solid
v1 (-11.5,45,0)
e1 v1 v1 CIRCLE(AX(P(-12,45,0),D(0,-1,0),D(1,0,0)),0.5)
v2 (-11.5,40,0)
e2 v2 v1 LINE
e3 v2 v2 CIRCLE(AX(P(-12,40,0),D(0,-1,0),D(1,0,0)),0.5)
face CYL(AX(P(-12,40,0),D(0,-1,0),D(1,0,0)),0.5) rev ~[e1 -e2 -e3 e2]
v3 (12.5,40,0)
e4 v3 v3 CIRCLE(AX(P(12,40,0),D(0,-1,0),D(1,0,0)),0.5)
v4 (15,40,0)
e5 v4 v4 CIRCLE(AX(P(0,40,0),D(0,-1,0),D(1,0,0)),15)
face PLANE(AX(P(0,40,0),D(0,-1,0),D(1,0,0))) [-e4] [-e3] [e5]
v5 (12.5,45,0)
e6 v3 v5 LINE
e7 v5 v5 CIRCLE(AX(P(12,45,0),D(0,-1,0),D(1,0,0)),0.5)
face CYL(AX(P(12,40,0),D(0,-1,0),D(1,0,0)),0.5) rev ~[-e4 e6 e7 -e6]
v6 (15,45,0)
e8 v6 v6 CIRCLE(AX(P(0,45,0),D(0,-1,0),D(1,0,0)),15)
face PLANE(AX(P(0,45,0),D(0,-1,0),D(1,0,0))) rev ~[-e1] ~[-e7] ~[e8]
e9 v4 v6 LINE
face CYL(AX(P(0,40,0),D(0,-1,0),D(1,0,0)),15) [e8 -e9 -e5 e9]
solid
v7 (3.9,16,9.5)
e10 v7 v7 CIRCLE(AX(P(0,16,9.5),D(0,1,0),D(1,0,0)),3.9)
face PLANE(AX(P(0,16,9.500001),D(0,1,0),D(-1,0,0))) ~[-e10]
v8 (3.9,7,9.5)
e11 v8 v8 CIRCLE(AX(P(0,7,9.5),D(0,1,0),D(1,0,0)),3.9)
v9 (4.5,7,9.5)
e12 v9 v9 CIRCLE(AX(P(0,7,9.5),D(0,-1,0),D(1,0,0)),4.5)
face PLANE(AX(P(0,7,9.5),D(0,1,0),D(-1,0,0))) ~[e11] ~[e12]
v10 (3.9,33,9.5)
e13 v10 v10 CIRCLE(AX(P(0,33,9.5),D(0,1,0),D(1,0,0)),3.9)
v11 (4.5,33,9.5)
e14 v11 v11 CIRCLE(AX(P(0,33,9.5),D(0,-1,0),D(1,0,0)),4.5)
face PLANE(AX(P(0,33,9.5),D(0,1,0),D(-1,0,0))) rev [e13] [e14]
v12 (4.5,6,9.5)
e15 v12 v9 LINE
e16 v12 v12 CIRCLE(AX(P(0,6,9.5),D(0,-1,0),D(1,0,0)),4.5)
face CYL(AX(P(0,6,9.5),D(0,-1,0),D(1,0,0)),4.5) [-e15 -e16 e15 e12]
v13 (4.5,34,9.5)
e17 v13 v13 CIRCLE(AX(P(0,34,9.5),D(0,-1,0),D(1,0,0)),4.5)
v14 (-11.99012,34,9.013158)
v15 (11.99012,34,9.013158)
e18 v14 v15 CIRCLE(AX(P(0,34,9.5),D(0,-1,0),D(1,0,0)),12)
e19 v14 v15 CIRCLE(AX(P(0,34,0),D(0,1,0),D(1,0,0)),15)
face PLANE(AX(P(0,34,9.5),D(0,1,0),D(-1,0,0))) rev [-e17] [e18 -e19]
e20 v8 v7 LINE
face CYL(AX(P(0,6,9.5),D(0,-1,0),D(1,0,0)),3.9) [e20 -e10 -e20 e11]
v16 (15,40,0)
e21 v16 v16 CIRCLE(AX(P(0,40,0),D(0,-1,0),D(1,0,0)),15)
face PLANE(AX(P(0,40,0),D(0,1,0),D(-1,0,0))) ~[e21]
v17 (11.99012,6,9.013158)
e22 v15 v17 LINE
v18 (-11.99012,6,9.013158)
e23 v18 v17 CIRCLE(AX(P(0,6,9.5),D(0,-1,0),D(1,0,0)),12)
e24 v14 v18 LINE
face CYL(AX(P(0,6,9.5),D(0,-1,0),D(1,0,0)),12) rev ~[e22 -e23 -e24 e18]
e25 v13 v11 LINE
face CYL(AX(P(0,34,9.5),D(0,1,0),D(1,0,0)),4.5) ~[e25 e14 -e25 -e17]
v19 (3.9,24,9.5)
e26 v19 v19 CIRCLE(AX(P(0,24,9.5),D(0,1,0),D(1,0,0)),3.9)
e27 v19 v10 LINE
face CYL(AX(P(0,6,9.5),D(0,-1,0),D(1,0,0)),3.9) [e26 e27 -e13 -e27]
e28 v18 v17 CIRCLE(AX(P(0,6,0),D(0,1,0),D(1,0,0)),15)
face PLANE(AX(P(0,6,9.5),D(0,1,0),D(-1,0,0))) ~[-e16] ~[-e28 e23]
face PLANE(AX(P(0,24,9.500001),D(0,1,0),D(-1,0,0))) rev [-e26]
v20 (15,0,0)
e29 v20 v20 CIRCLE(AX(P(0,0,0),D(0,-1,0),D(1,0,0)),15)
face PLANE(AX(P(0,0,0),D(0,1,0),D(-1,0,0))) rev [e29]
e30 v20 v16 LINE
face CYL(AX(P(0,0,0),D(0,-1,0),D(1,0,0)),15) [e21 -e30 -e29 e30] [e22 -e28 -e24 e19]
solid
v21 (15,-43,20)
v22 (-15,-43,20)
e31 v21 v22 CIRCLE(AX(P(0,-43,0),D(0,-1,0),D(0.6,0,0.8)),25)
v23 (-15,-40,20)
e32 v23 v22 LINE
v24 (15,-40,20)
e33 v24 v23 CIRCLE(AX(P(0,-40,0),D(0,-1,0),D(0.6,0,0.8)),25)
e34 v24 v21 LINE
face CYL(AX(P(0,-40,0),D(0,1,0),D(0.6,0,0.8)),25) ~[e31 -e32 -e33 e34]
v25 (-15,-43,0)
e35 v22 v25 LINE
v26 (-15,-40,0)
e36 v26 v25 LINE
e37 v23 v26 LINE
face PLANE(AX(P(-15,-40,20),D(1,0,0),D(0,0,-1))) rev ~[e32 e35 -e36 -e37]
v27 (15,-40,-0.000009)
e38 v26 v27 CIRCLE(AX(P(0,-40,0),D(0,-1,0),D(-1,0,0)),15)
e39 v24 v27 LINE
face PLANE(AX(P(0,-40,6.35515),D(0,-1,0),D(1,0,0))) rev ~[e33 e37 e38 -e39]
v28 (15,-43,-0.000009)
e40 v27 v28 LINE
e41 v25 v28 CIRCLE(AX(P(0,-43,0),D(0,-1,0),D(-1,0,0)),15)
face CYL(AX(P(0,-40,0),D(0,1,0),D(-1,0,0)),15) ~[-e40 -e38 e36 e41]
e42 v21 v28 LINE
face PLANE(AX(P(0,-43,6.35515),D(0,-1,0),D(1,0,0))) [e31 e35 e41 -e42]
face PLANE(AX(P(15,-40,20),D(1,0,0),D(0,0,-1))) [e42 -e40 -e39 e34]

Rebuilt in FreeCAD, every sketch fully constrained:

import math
import FreeCAD as App
import Part
import Sketcher

V = App.Vector

doc = App.newDocument("Part")
body = doc.addObject("PartDesign::Body", "Body")

# Sketch on XZ plane
sketch1 = doc.addObject("Sketcher::SketchObject", "Sketch")
body.addObject(sketch1)
sketch1.AttachmentSupport = (doc.XZ_Plane, [""])
sketch1.MapMode = "FlatFace"
sketch1.addGeometry(Part.Circle(V(0, 0, 0), V(0, 0, 1), 15), False)
sketch1.addConstraint([
    Sketcher.Constraint("Coincident", 0, 3, -1, 1),
    Sketcher.Constraint("Diameter", 0, 30.0),
])
pad1 = doc.addObject("PartDesign::Pad", "Pad")
body.addObject(pad1)
pad1.Profile = sketch1
pad1.Length = 40

# Sketch on XZ plane
sketch2 = doc.addObject("Sketcher::SketchObject", "Sketch001")
body.addObject(sketch2)
sketch2.AttachmentSupport = (doc.XZ_Plane, [""])
sketch2.MapMode = "FlatFace"
sketch2.AttachmentOffset = App.Placement(V(0, 0, 6), App.Rotation())
sketch2.addGeometry(Part.Circle(V(0, 10, 0), V(0, 0, 1), 12), False)
sketch2.addConstraint([
    Sketcher.Constraint("PointOnObject", 0, 3, -2),
    Sketcher.Constraint("Diameter", 0, 24.0),
    Sketcher.Constraint("DistanceY", -1, 1, 0, 3, 9.5),
])
pocket1 = doc.addObject("PartDesign::Pocket", "Pocket")
body.addObject(pocket1)
pocket1.Profile = sketch2
pocket1.Length = 28
pocket1.Reversed = True

# Sketch on XZ plane
sketch3 = doc.addObject("Sketcher::SketchObject", "Sketch002")
body.addObject(sketch3)
sketch3.AttachmentSupport = (doc.XZ_Plane, [""])
sketch3.MapMode = "FlatFace"
sketch3.AttachmentOffset = App.Placement(V(0, 0, 6), App.Rotation())
sketch3.addGeometry(Part.Circle(V(0, 9.5, 0), V(0, 0, 1), 3.9), False)
sketch3.addConstraint([
    Sketcher.Constraint("PointOnObject", 0, 3, -2),
    Sketcher.Constraint("Diameter", 0, 7.8),
    Sketcher.Constraint("DistanceY", -1, 1, 0, 3, 9.5),
])
pad2 = doc.addObject("PartDesign::Pad", "Pad001")
body.addObject(pad2)
pad2.Profile = sketch3
pad2.Length = 28

# Sketch on XZ plane
sketch4 = doc.addObject("Sketcher::SketchObject", "Sketch003")
body.addObject(sketch4)
sketch4.AttachmentSupport = (doc.XZ_Plane, [""])
sketch4.MapMode = "FlatFace"
sketch4.AttachmentOffset = App.Placement(V(0, 0, 20), App.Rotation())
sketch4.addGeometry(Part.Circle(V(0, 9.5, 0), V(0, 0, 1), 4.6), False)
sketch4.addConstraint([
    Sketcher.Constraint("PointOnObject", 0, 3, -2),
    Sketcher.Constraint("DistanceY", -1, 1, 0, 3, 9.500001),
    Sketcher.Constraint("Diameter", 0, 9.128368),
])
pocket2 = doc.addObject("PartDesign::Pocket", "Pocket001")
body.addObject(pocket2)
pocket2.Profile = sketch4
pocket2.Length = 8
pocket2.Midplane = True

# Sketch on XZ plane
sketch5 = doc.addObject("Sketcher::SketchObject", "Sketch004")
body.addObject(sketch5)
sketch5.AttachmentSupport = (doc.XZ_Plane, [""])
sketch5.MapMode = "FlatFace"
sketch5.AttachmentOffset = App.Placement(V(0, 0, 6), App.Rotation())
sketch5.addGeometry(Part.Circle(V(0, 9.5, 0), V(0, 0, 1), 4.5), False)
sketch5.addConstraint([
    Sketcher.Constraint("PointOnObject", 0, 3, -2),
    Sketcher.Constraint("Diameter", 0, 9.0),
    Sketcher.Constraint("DistanceY", -1, 1, 0, 3, 9.5),
])
pad3 = doc.addObject("PartDesign::Pad", "Pad002")
body.addObject(pad3)
pad3.Profile = sketch5
pad3.Length = 1

# Sketch on XZ plane
sketch6 = doc.addObject("Sketcher::SketchObject", "Sketch005")
body.addObject(sketch6)
sketch6.AttachmentSupport = (doc.XZ_Plane, [""])
sketch6.MapMode = "FlatFace"
sketch6.AttachmentOffset = App.Placement(V(0, 0, 34), App.Rotation())
sketch6.addGeometry(Part.Circle(V(0, 9.5, 0), V(0, 0, 1), 4.5), False)
sketch6.addConstraint([
    Sketcher.Constraint("PointOnObject", 0, 3, -2),
    Sketcher.Constraint("Diameter", 0, 9.0),
    Sketcher.Constraint("DistanceY", -1, 1, 0, 3, 9.5),
])
pad4 = doc.addObject("PartDesign::Pad", "Pad003")
body.addObject(pad4)
pad4.Profile = sketch6
pad4.Length = 1
pad4.Reversed = True
body2 = doc.addObject("PartDesign::Body", "Body001")
doc.recompute()

mirroring = doc.addObject("Part::Mirroring", "Mirroring")
mirroring.Source = body
mirroring.Base = V(0, 0, 0)
mirroring.Normal = V(0, 1, 0)
body2.BaseFeature = mirroring
doc.recompute()
body3 = doc.addObject("PartDesign::Body", "Body002")

# Sketch on XZ plane
sketch7 = doc.addObject("Sketcher::SketchObject", "Sketch006")
body3.addObject(sketch7)
sketch7.AttachmentSupport = (doc.getObject("XZ_Plane002"), [""])
sketch7.MapMode = "FlatFace"
sketch7.AttachmentOffset = App.Placement(V(0, 0, 40), App.Rotation())
sketch7.addGeometry([
    Part.ArcOfCircle(Part.Circle(V(0, 0, 0), V(0, 0, 1), 25), math.radians(53), math.radians(127)),
    Part.LineSegment(V(-15, 20, 0), V(-15, 0, 0)),
    Part.ArcOfCircle(Part.Circle(V(0, 0, 0), V(0, 0, 1), 15), math.radians(180), math.radians(360)),
    Part.LineSegment(V(15, 0, 0), V(15, 20, 0)),
], False)
sketch7.addConstraint([
    Sketcher.Constraint("Coincident", 0, 2, 1, 1),
    Sketcher.Constraint("Tangent", 1, 2, 2, 1),
    Sketcher.Constraint("Tangent", 2, 2, 3, 1),
    Sketcher.Constraint("Coincident", 3, 2, 0, 1),
    Sketcher.Constraint("Vertical", 1),
    Sketcher.Constraint("Vertical", 3),
    Sketcher.Constraint("Coincident", 0, 3, -1, 1),
    Sketcher.Constraint("Coincident", 2, 3, -1, 1),
    Sketcher.Constraint("Radius", 0, 25.0),
    Sketcher.Constraint("Radius", 2, 15.0),
])
pad5 = doc.addObject("PartDesign::Pad", "Pad004")
body3.addObject(pad5)
pad5.Profile = sketch7
pad5.Length = 3

# Sketch on XZ plane
sketch8 = doc.addObject("Sketcher::SketchObject", "Sketch007")
body3.addObject(sketch8)
sketch8.AttachmentSupport = (doc.getObject("XZ_Plane002"), [""])
sketch8.MapMode = "FlatFace"
sketch8.AttachmentOffset = App.Placement(V(0, 0, -45), App.Rotation())
sketch8.addGeometry([
    Part.Circle(V(-12, 0, 0), V(0, 0, 1), 0.5),
    Part.Circle(V(12, 0, 0), V(0, 0, 1), 0.5),
], False)
sketch8.addConstraint([
    Sketcher.Constraint("Equal", 0, 1),
    Sketcher.Constraint("Symmetric", 0, 3, 1, 3, -1, 1),
    Sketcher.Constraint("PointOnObject", 0, 3, -1),
    Sketcher.Constraint("Diameter", 0, 1.0),
    Sketcher.Constraint("DistanceX", 0, 3, -1, 1, 12.0),
])
pocket3 = doc.addObject("PartDesign::Pocket", "Pocket002")
body3.addObject(pocket3)
pocket3.Profile = sketch8
pocket3.Length = 10
pocket3.Reversed = True
body4 = doc.addObject("PartDesign::Body", "Body003")

# Sketch on XZ plane
sketch9 = doc.addObject("Sketcher::SketchObject", "Sketch008")
body4.addObject(sketch9)
sketch9.AttachmentSupport = (doc.getObject("XZ_Plane003"), [""])
sketch9.MapMode = "FlatFace"
sketch9.AttachmentOffset = App.Placement(V(0, 0, -40), App.Rotation())
sketch9.addGeometry([
    Part.Circle(V(0, 0, 0), V(0, 0, 1), 15),
    Part.Circle(V(-12, 0, 0), V(0, 0, 1), 0.5),
    Part.Circle(V(12, 0, 0), V(0, 0, 1), 0.5),
], False)
sketch9.addConstraint([
    Sketcher.Constraint("Coincident", 0, 3, -1, 1),
    Sketcher.Constraint("Equal", 1, 2),
    Sketcher.Constraint("Symmetric", 1, 3, 2, 3, -1, 1),
    Sketcher.Constraint("PointOnObject", 1, 3, -1),
    Sketcher.Constraint("Diameter", 0, 30.0),
    Sketcher.Constraint("Diameter", 1, 1.0),
    Sketcher.Constraint("DistanceX", 1, 3, -1, 1, 12.0),
])
pad6 = doc.addObject("PartDesign::Pad", "Pad005")
body4.addObject(pad6)
pad6.Profile = sketch9
pad6.Length = 5
pad6.Reversed = True
body.Visibility = False
mirroring.Visibility = False

doc.recompute()
